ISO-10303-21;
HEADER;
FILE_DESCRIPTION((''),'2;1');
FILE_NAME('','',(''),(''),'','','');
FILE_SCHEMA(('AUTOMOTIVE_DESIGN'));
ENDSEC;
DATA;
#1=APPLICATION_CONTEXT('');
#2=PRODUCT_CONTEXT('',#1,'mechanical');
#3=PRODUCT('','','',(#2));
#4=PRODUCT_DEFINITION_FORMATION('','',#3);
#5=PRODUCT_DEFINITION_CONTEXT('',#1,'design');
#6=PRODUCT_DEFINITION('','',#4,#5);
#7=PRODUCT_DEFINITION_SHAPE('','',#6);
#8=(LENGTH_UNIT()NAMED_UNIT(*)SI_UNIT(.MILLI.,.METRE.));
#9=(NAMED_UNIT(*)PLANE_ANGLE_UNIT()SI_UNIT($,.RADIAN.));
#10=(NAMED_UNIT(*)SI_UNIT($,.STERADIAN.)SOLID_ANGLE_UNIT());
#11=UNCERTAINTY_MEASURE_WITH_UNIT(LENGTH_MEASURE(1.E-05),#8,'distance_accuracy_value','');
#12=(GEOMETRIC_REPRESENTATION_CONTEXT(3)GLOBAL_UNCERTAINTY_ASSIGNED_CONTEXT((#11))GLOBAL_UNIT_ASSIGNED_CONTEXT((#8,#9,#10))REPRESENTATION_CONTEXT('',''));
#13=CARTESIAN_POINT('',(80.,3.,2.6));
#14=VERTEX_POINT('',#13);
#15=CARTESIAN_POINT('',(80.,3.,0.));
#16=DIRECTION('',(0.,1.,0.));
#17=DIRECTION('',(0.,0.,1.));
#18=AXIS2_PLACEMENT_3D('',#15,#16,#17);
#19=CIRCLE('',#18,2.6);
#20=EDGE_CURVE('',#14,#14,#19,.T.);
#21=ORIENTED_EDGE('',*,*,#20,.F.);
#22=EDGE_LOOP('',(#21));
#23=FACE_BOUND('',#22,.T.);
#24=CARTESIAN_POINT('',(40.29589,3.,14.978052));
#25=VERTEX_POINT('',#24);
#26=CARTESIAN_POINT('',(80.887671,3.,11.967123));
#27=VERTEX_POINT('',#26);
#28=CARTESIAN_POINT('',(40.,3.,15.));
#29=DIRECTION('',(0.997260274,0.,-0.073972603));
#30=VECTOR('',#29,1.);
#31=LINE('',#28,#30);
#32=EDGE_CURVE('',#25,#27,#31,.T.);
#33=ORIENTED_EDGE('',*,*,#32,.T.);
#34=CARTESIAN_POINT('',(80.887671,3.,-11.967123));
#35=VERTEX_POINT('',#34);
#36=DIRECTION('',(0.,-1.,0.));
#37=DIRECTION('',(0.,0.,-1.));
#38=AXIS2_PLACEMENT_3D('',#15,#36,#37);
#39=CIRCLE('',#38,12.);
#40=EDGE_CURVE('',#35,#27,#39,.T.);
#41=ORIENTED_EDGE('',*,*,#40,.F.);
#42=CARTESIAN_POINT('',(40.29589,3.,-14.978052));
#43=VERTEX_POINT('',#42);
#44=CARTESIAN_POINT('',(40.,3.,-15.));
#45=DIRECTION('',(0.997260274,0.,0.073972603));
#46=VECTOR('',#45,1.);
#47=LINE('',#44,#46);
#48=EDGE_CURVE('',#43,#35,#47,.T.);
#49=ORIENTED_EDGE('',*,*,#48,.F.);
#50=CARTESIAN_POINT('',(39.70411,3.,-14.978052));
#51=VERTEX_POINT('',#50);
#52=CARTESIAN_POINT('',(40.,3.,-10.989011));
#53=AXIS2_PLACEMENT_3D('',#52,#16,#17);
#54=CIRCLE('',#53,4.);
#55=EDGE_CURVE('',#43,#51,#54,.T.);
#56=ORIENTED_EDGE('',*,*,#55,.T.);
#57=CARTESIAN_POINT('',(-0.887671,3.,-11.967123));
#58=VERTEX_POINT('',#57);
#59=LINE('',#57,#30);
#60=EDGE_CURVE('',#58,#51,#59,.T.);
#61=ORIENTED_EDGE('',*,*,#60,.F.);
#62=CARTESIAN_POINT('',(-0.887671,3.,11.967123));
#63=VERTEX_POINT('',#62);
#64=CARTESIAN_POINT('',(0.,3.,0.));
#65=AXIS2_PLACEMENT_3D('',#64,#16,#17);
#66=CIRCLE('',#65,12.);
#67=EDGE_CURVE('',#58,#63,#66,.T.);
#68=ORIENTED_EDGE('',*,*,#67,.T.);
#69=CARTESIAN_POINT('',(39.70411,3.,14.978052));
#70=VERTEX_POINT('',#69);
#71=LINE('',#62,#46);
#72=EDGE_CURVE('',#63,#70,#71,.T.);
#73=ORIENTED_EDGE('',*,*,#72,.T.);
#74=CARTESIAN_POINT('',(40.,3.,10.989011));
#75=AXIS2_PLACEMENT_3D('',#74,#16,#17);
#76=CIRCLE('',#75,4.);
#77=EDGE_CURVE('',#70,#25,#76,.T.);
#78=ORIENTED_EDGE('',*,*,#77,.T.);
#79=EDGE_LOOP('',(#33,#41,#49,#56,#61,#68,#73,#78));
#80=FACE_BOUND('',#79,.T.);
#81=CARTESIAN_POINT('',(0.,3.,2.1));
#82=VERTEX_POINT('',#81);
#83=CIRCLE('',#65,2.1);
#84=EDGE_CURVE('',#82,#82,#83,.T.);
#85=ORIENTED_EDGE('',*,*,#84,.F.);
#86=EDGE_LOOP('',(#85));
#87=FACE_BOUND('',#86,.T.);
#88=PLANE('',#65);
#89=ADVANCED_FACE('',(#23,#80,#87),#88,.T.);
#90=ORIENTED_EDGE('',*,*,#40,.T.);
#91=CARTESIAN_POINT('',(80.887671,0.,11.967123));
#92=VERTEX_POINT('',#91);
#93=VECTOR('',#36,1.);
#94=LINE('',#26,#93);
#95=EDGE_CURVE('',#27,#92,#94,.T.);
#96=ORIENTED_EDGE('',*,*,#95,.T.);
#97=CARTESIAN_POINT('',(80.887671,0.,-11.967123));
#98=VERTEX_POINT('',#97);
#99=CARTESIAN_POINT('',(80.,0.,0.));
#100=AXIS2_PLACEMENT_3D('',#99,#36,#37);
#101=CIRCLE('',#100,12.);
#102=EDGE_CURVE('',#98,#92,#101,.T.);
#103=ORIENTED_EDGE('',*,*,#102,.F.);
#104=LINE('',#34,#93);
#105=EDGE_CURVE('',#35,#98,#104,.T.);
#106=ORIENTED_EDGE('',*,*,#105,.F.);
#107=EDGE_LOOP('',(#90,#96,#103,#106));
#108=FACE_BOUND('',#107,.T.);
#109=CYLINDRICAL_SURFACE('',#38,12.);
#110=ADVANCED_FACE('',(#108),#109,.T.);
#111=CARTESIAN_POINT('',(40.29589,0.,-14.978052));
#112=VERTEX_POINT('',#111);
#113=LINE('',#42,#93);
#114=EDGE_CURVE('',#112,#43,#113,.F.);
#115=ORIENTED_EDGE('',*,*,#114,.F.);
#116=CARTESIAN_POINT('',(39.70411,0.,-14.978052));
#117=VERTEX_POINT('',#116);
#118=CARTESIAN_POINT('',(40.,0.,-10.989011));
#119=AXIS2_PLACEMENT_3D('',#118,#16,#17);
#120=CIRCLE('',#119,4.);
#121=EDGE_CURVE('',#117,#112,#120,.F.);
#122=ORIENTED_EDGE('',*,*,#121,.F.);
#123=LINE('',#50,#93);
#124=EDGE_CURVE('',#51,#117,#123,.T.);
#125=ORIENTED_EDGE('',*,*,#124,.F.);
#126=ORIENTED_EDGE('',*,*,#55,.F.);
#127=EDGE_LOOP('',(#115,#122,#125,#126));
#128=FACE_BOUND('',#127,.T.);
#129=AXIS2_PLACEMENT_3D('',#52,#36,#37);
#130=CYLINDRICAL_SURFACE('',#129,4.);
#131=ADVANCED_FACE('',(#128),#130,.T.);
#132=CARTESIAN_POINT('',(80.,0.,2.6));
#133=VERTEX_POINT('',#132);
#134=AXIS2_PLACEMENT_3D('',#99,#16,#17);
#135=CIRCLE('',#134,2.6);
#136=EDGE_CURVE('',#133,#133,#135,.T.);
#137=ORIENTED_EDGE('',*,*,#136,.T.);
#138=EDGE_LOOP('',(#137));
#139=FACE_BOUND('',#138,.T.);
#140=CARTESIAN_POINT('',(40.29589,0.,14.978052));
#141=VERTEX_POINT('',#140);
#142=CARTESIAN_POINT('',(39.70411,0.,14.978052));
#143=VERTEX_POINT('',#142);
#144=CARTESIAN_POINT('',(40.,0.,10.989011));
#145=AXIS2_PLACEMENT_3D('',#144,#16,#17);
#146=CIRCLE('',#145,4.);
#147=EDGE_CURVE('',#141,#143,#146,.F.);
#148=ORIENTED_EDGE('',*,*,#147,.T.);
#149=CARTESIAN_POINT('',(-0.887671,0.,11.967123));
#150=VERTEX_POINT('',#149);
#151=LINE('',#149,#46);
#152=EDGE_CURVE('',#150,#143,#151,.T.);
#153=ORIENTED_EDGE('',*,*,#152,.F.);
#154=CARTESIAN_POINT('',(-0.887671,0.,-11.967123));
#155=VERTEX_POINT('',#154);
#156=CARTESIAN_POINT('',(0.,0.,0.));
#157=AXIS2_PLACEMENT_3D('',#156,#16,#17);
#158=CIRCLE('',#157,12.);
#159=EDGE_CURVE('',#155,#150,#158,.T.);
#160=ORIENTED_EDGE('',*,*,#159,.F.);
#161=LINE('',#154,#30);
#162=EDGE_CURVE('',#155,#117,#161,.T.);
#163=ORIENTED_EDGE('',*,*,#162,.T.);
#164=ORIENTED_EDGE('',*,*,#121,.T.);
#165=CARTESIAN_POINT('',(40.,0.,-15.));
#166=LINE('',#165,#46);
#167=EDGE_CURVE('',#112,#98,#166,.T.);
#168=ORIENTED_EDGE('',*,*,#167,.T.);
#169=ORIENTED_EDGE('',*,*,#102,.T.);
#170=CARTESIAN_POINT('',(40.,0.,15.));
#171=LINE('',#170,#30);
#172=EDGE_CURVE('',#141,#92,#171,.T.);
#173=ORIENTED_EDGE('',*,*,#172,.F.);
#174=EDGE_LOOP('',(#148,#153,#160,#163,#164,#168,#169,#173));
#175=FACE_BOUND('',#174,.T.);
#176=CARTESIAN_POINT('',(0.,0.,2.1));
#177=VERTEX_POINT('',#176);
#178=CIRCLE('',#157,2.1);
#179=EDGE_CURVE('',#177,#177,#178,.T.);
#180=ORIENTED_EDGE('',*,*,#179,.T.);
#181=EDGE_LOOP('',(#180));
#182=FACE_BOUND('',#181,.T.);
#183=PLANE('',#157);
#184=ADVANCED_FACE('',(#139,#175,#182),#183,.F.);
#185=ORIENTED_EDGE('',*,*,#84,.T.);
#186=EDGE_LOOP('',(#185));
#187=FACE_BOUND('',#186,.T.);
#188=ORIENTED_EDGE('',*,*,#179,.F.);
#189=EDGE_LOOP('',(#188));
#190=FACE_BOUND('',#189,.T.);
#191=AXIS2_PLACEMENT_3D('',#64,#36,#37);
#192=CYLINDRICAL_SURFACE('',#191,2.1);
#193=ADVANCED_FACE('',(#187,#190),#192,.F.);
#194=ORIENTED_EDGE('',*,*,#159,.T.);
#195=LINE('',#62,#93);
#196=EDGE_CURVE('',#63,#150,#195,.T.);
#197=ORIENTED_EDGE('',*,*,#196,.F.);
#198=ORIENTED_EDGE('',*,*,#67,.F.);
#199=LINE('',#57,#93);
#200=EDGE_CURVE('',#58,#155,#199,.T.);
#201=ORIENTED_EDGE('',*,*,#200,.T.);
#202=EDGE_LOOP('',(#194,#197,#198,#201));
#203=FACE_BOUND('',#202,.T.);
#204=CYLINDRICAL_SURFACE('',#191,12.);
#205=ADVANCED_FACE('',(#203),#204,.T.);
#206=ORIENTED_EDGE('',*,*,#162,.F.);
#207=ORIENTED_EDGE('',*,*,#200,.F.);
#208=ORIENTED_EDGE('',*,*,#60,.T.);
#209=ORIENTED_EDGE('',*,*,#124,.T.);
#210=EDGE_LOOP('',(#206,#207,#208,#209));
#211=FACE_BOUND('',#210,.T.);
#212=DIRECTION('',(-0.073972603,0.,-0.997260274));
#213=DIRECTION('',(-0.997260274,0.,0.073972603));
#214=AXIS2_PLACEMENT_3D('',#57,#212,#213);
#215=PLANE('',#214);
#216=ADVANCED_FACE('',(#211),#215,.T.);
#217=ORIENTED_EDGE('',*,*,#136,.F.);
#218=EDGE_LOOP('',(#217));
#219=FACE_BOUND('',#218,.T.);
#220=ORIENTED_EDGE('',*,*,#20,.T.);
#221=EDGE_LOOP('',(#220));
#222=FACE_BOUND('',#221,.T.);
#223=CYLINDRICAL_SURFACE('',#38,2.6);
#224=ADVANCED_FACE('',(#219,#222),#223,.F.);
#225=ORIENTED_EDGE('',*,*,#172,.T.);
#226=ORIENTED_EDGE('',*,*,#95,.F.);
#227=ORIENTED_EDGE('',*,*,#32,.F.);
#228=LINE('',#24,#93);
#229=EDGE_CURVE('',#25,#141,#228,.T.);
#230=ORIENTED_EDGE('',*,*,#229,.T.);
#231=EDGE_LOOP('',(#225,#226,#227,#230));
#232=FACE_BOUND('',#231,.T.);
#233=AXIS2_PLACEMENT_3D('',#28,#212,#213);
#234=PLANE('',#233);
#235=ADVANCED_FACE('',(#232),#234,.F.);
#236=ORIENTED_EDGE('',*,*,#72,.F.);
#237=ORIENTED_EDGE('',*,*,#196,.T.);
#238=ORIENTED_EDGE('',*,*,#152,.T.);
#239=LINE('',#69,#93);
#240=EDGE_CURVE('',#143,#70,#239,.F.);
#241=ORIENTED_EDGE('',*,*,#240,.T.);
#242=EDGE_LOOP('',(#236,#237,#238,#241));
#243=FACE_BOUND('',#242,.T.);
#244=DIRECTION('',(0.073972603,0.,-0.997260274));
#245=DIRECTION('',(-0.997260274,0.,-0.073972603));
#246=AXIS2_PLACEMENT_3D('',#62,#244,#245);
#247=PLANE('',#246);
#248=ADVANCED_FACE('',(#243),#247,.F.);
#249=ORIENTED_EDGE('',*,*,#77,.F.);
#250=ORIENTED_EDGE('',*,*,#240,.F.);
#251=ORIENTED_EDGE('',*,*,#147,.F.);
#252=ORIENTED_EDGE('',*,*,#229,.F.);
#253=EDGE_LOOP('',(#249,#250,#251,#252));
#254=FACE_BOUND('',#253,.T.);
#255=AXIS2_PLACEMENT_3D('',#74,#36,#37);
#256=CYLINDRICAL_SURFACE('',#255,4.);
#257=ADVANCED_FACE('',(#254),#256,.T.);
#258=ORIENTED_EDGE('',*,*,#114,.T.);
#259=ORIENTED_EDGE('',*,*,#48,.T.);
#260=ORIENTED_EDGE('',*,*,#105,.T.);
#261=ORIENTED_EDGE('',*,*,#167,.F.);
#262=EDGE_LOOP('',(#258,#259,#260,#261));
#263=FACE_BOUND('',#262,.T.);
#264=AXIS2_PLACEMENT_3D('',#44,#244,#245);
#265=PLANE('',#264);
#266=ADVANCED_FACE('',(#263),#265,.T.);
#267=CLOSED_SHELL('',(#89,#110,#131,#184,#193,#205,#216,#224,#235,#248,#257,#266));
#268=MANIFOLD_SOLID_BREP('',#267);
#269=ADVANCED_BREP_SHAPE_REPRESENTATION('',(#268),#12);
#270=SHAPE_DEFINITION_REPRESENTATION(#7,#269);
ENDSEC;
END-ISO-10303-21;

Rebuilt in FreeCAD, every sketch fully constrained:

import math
import FreeCAD as App
import Part
import Sketcher

V = App.Vector
Q = App.Units.Quantity


def edges_at(feature, points):
    """Names of the edges that pass closest to the given points."""
    edges = feature.Shape.Edges
    near = lambda p: min(range(len(edges)), key=lambda i: edges[i].distToShape(Part.Vertex(*p))[0])
    return sorted({f"Edge{near(p) + 1}" for p in points})

doc = App.newDocument("Part")
body = doc.addObject("PartDesign::Body", "Body")

# Sketch on XZ plane
sketch1 = doc.addObject("Sketcher::SketchObject", "Sketch")
body.addObject(sketch1)
sketch1.AttachmentSupport = (doc.XZ_Plane, [""])
sketch1.MapMode = "FlatFace"
sketch1.addGeometry(Part.LineSegment(V(80.9, -12, 0), V(40, -15, 0)), False)
sketch1.addGeometry(Part.LineSegment(V(40, -15, 0), V(-0.9, -12, 0)), False)
sketch1.addGeometry(Part.ArcOfCircle(Part.Circle(V(0, 0, 0), V(0, 0, 1), 12), math.radians(94), math.radians(266)), False)
sketch1.addGeometry(Part.LineSegment(V(-0.9, 12, 0), V(40, 15, 0)), False)
sketch1.addGeometry(Part.LineSegment(V(40, 15, 0), V(80.9, 12, 0)), False)
sketch1.addGeometry(Part.ArcOfCircle(Part.Circle(V(80, 0, 0), V(0, 0, 1), 12), math.radians(-86), math.radians(86)), False)
sketch1.addGeometry(Part.Circle(V(80, 0, 0), V(0, 0, 1), 2.6), False)
sketch1.addGeometry(Part.Circle(V(0, 0, 0), V(0, 0, 1), 2.1), False)
sketch1.addConstraint(Sketcher.Constraint("Coincident", 0, 2, 1, 1))
sketch1.addConstraint(Sketcher.Constraint("Tangent", 1, 2, 2, 2))
sketch1.addConstraint(Sketcher.Constraint("Tangent", 2, 1, 3, 1))
sketch1.addConstraint(Sketcher.Constraint("Coincident", 3, 2, 4, 1))
sketch1.addConstraint(Sketcher.Constraint("Tangent", 4, 2, 5, 2))
sketch1.addConstraint(Sketcher.Constraint("Tangent", 5, 1, 0, 1))
sketch1.addConstraint(Sketcher.Constraint("Coincident", 2, 3, -1, 1))
sketch1.addConstraint(Sketcher.Constraint("Coincident", 7, 3, -1, 1))
sketch1.addConstraint(Sketcher.Constraint("Coincident", 6, 3, 5, 3))
sketch1.addConstraint(Sketcher.Constraint("Equal", 2, 5))
sketch1.addConstraint(Sketcher.Constraint("Symmetric", 0, 2, 3, 2, -1))
sketch1.addConstraint(Sketcher.Constraint("PointOnObject", 5, 3, -1))
sketch1.addConstraint(Sketcher.Constraint("Parallel", 0, 3))
sketch1.addConstraint(Sketcher.Constraint("Radius", 2, Q("12 mm")))
sketch1.addConstraint(Sketcher.Constraint("Diameter", 6, Q("5.2 mm")))
sketch1.addConstraint(Sketcher.Constraint("Diameter", 7, Q("4.2 mm")))
sketch1.addConstraint(Sketcher.Constraint("Distance", 0, Q("41 mm")))
sketch1.addConstraint(Sketcher.Constraint("DistanceX", -1, 1, 5, 3, Q("80 mm")))
pad1 = doc.addObject("PartDesign::Pad", "Pad")
body.addObject(pad1)
pad1.Profile = sketch1
pad1.Length = 3
pad1.Reversed = True
doc.recompute()

fillet = doc.addObject("PartDesign::Fillet", "Fillet")
body.addObject(fillet)
fillet.Base = (pad1, edges_at(pad1, [(40, 1.5, -15), (40, 1.5, 15)]))
fillet.Radius = 4

doc.recompute()
